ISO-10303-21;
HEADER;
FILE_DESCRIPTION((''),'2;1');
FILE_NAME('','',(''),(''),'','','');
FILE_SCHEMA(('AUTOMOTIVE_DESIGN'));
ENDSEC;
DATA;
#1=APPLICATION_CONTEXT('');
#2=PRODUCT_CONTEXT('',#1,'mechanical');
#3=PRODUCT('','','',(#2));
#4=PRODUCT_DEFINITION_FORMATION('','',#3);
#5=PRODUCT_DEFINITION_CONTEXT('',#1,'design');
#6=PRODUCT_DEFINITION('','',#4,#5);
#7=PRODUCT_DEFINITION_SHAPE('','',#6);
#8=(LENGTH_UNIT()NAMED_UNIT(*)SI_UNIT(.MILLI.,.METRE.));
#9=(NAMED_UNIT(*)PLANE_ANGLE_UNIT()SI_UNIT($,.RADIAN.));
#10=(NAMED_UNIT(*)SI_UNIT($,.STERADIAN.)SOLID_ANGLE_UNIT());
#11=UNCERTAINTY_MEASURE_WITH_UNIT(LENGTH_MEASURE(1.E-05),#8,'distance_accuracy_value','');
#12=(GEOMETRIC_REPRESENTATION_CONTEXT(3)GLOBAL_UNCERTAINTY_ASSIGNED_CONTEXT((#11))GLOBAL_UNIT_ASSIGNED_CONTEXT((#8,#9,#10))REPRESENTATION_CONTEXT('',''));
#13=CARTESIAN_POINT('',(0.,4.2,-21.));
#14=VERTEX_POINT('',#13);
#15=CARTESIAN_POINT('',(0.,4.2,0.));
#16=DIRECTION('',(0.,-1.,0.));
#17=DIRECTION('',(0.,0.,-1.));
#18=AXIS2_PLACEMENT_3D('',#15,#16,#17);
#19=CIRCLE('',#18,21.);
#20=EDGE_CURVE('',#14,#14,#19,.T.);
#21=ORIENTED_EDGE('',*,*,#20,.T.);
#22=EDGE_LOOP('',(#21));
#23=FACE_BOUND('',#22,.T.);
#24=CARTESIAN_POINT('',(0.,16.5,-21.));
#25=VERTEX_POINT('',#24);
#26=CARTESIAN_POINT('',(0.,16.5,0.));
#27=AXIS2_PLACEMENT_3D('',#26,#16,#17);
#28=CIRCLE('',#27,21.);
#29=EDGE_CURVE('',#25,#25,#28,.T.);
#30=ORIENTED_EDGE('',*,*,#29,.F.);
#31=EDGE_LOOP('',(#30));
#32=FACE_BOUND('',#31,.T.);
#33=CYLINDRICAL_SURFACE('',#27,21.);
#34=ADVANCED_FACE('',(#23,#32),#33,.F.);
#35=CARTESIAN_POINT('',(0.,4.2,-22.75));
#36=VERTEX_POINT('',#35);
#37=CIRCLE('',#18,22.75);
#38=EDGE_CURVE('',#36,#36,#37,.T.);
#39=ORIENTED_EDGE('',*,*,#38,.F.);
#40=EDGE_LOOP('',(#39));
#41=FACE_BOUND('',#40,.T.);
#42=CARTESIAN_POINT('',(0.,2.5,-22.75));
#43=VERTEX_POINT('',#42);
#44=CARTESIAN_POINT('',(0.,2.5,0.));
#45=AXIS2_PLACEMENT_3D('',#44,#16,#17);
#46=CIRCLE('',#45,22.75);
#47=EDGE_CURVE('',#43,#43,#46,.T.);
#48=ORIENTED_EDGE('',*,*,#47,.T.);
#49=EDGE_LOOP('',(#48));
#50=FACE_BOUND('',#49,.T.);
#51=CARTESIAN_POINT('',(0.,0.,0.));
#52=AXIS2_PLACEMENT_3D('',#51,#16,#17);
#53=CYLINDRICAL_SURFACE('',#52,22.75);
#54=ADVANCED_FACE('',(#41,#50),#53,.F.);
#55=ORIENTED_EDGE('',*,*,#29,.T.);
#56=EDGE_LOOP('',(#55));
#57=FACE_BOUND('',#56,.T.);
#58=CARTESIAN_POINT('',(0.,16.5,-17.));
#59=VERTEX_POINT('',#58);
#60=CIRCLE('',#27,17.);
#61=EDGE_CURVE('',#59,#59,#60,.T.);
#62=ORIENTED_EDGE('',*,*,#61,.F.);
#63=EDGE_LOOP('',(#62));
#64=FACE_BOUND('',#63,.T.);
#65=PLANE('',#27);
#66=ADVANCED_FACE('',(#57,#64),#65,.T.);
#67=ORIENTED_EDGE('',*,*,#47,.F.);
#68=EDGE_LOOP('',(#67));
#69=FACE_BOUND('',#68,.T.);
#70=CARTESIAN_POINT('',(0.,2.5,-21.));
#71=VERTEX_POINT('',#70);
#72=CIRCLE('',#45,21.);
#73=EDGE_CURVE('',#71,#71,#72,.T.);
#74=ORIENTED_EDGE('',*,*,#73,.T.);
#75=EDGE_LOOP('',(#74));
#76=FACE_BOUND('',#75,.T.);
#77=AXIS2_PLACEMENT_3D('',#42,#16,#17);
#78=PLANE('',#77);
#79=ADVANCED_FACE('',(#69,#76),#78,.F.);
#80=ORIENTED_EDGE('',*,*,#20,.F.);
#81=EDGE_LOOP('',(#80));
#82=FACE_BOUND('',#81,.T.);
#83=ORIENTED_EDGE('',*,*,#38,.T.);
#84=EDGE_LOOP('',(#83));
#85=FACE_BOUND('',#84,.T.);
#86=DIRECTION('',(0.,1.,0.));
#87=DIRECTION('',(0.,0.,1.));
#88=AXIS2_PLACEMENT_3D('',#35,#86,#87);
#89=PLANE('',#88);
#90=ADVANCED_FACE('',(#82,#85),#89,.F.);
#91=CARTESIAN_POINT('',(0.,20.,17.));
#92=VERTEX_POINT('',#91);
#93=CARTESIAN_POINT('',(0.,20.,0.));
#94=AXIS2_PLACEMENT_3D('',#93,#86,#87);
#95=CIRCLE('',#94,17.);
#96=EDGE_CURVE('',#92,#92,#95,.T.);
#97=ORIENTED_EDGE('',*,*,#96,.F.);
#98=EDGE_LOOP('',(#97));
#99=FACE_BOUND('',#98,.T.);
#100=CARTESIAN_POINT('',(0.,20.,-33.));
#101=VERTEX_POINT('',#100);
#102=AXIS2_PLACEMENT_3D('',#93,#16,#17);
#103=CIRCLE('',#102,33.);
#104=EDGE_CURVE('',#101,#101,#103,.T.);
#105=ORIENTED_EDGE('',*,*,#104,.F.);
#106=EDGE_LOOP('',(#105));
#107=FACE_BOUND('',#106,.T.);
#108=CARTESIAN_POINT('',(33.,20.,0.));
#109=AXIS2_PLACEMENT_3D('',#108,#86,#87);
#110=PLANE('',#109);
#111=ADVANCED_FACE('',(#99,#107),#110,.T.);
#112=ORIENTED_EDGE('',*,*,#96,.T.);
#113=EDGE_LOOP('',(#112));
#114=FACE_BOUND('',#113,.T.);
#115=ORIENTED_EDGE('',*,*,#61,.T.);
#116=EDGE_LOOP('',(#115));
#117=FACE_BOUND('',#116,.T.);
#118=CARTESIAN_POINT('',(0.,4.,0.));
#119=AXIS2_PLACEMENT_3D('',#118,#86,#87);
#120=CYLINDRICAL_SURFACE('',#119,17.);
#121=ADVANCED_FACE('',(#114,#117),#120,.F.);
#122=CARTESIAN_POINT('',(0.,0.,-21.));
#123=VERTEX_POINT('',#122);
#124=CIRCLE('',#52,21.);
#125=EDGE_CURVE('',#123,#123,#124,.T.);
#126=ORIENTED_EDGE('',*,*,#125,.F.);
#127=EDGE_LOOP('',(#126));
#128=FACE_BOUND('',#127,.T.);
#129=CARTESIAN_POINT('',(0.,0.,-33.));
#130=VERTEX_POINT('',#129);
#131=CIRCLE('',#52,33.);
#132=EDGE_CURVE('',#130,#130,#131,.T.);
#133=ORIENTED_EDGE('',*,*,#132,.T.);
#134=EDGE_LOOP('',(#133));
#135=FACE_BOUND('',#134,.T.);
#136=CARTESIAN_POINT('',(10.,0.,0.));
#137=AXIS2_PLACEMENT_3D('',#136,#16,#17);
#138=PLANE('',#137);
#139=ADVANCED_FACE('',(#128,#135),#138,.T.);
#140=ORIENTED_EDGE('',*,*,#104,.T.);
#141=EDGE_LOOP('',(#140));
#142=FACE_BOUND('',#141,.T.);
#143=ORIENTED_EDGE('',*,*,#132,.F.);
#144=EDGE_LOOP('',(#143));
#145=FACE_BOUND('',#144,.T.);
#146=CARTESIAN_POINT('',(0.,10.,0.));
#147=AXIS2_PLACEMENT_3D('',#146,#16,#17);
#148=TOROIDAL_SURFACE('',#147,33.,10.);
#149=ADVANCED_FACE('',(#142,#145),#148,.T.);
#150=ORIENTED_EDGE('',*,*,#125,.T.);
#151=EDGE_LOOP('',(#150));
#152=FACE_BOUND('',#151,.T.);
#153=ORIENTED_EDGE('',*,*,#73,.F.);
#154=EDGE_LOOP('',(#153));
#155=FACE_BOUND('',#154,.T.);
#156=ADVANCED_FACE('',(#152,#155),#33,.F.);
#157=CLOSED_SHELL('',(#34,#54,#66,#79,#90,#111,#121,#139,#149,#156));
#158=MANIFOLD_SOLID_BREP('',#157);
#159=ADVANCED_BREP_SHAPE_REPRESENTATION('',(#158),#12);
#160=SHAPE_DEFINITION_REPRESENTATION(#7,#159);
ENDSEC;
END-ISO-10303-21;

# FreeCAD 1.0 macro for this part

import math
import FreeCAD as App
import Part
import Sketcher

doc = App.newDocument("Part")
body = doc.addObject("PartDesign::Body", "Body")

# Sketch on XY plane
sketch1 = body.newObject("Sketcher::SketchObject", "Sketch")
sketch1.AttachmentSupport = (doc.getObject("XY_Plane"), [""])
sketch1.MapMode = "FlatFace"
sketch1.addGeometry([
    Part.LineSegment(App.Vector(10, 0, 0), App.Vector(33, 0, 0)),
    Part.ArcOfCircle(Part.Circle(App.Vector(33, 10, 0), App.Vector(0, 0, 1), 10), math.radians(-90), math.radians(90)),
    Part.LineSegment(App.Vector(33, 20, 0), App.Vector(10, 20, 0)),
    Part.LineSegment(App.Vector(10, 20, 0), App.Vector(10, 0, 0)),
], False)
sketch1.addConstraint([
    Sketcher.Constraint("Tangent", 0, 2, 1, 1),
    Sketcher.Constraint("Tangent", 1, 2, 2, 1),
    Sketcher.Constraint("Coincident", 2, 2, 3, 1),
    Sketcher.Constraint("Coincident", 3, 2, 0, 1),
    Sketcher.Constraint("Horizontal", 0),
    Sketcher.Constraint("Horizontal", 2),
    Sketcher.Constraint("Vertical", 3),
    Sketcher.Constraint("PointOnObject", 0, 2, -1),
    Sketcher.Constraint("Radius", 1, 10.0),
    Sketcher.Constraint("DistanceX", 0, 1, 0, 2, 23.0),
    Sketcher.Constraint("DistanceX", -1, 1, 1, 3, 33.0),
])
revolution = body.newObject("PartDesign::Revolution", "Revolution")
revolution.Profile = sketch1
revolution.ReferenceAxis = (sketch1, ["V_Axis"])
revolution.Angle = 360

# Sketch on XZ plane
sketch2 = body.newObject("Sketcher::SketchObject", "Sketch001")
sketch2.AttachmentSupport = (doc.getObject("XZ_Plane"), [""])
sketch2.MapMode = "FlatFace"
sketch2.addGeometry(Part.Circle(App.Vector(0, 0, 0), App.Vector(0, 0, 1), 21), False)
sketch2.addConstraint([
    Sketcher.Constraint("Coincident", 0, 3, -1, 1),
    Sketcher.Constraint("Diameter", 0, 42.0),
])
pocket1 = body.newObject("PartDesign::Pocket", "Pocket")
pocket1.Profile = sketch2
pocket1.Length = 16.5

# Sketch on YZ plane
sketch3 = body.newObject("Sketcher::SketchObject", "Sketch002")
sketch3.AttachmentSupport = (doc.getObject("YZ_Plane"), [""])
sketch3.MapMode = "FlatFace"
sketch3.addGeometry([
    Part.LineSegment(App.Vector(4.2, -21, 0), App.Vector(2.5, -21, 0)),
    Part.LineSegment(App.Vector(2.5, -21, 0), App.Vector(2.5, -22.8, 0)),
    Part.LineSegment(App.Vector(2.5, -22.8, 0), App.Vector(4.2, -22.8, 0)),
    Part.LineSegment(App.Vector(4.2, -22.8, 0), App.Vector(4.2, -21, 0)),
], False)
sketch3.addConstraint([
    Sketcher.Constraint("Coincident", 0, 2, 1, 1),
    Sketcher.Constraint("Coincident", 1, 2, 2, 1),
    Sketcher.Constraint("Coincident", 2, 2, 3, 1),
    Sketcher.Constraint("Coincident", 3, 2, 0, 1),
    Sketcher.Constraint("Horizontal", 0),
    Sketcher.Constraint("Vertical", 1),
    Sketcher.Constraint("Horizontal", 2),
    Sketcher.Constraint("Vertical", 3),
    Sketcher.Constraint("DistanceX", 0, 2, 0, 1, 1.7),
    Sketcher.Constraint("DistanceY", 0, 2, -1, 1, 21.0),
    Sketcher.Constraint("DistanceY", 1, 2, 1, 1, 1.75),
    Sketcher.Constraint("DistanceX", -1, 1, 0, 2, 2.5),
])
groove = body.newObject("PartDesign::Groove", "Groove")
groove.Profile = sketch3
groove.ReferenceAxis = (sketch3, ["H_Axis"])
groove.Angle = 360

# Sketch on XZ plane
sketch4 = body.newObject("Sketcher::SketchObject", "Sketch003")
sketch4.AttachmentSupport = (doc.getObject("XZ_Plane"), [""])
sketch4.MapMode = "FlatFace"
sketch4.AttachmentOffset = App.Placement(App.Vector(0, 0, -20), App.Rotation())
sketch4.addGeometry(Part.Circle(App.Vector(0, 0, 0), App.Vector(0, 0, 1), 17), False)
sketch4.addConstraint([
    Sketcher.Constraint("Coincident", 0, 3, -1, 1),
    Sketcher.Constraint("Diameter", 0, 34.0),
])
pocket2 = body.newObject("PartDesign::Pocket", "Pocket001")
pocket2.Profile = sketch4
pocket2.Length = 16
pocket2.Reversed = True

doc.recompute()
